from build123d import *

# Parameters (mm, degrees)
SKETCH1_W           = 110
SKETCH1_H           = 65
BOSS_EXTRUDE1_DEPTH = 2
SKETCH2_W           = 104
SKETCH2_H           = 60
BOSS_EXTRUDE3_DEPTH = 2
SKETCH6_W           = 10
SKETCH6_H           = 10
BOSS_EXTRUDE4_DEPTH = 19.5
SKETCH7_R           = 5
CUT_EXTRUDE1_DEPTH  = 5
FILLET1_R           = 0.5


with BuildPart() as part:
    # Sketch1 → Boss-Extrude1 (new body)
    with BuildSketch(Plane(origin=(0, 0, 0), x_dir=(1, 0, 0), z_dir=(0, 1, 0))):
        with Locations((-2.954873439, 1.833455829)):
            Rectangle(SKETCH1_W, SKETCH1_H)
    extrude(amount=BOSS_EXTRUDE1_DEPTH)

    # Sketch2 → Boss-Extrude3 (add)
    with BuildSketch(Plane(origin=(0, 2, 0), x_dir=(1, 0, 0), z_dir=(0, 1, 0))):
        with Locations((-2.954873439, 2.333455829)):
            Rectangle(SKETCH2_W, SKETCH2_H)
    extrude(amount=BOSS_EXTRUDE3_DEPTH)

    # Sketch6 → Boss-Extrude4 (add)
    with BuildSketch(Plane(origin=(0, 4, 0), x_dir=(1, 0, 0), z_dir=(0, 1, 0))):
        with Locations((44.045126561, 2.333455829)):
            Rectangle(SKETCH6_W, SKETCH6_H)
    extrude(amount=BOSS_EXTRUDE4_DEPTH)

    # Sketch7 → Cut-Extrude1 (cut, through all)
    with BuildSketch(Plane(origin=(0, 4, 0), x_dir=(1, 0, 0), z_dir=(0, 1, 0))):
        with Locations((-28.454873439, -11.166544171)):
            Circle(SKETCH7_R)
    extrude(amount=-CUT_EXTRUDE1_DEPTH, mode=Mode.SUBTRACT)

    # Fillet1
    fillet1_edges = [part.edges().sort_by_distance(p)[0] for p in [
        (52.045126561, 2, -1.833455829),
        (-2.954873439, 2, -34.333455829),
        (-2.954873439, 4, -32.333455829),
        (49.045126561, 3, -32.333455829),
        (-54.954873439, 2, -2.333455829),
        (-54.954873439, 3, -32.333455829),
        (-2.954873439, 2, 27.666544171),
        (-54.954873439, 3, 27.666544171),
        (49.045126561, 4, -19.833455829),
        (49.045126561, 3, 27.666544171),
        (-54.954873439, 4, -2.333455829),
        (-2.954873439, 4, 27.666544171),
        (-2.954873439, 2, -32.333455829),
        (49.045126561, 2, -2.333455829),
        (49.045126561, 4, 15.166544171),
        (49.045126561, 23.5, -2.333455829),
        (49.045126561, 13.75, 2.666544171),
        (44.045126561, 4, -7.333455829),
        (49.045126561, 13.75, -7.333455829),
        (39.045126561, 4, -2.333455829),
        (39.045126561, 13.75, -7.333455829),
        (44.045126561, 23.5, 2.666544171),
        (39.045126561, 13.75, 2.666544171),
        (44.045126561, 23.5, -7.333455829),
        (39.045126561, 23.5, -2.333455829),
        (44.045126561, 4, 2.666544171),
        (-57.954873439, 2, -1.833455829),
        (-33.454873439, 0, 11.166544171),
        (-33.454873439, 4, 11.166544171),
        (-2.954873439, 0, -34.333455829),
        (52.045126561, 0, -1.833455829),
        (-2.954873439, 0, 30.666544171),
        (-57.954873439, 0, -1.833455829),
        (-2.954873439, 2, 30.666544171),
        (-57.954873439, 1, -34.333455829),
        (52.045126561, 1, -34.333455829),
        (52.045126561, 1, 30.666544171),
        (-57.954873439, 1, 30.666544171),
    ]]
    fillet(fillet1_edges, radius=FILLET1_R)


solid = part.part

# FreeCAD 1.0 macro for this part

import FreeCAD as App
import Part
import Sketcher

V = App.Vector
Q = App.Units.Quantity


def add_polygon(sketch, points):
    """Adds a closed chain of lines whose ends are joined by coincident constraints."""
    first, n = sketch.GeometryCount, len(points)
    for a, b in zip(points, points[1:] + points[:1]):
        sketch.addGeometry(Part.LineSegment(App.Vector(*a, 0), App.Vector(*b, 0)), False)
    for i in range(n):
        sketch.addConstraint(Sketcher.Constraint("Coincident", first + i, 2, first + (i + 1) % n, 1))

doc = App.newDocument("Part")
params = doc.addObject("Spreadsheet::Sheet", "Params")
for row, (alias, value) in enumerate([
    ("sketch1_width", "110 mm"),
    ("sketch1_height", "65 mm"),
    ("pad1_length", "2 mm"),
    ("sketch2_width", "104 mm"),
    ("sketch2_height", "60 mm"),
    ("pad2_length", "2 mm"),
    ("sketch3_width", "10 mm"),
    ("pad3_length", "19.5 mm"),
    ("sketch4_diameter", "10 mm"),
    ("fillet_radius", "0.5 mm"),
], start=1):
    params.set(f"A{row}", alias)
    params.set(f"B{row}", "=" + value)
    params.setAlias(f"B{row}", alias)

body = doc.addObject("PartDesign::Body", "Body")

sketch1 = body.newObject("Sketcher::SketchObject", "Sketch")
sketch1.AttachmentSupport = (doc.getObject("XZ_Plane"), [""])
sketch1.MapMode = "FlatFace"
add_polygon(sketch1, [(-58, -34), (-58, 31), (52, 31), (52, -34)])
sketch1.addConstraint([
    Sketcher.Constraint("Vertical", 0),
    Sketcher.Constraint("Horizontal", 1),
    Sketcher.Constraint("Vertical", 2),
    Sketcher.Constraint("Horizontal", 3),
    Sketcher.Constraint("DistanceX", 1, 1, 1, 2, Q("110 mm")),
    Sketcher.Constraint("DistanceY", 0, 1, 0, 2, Q("65 mm")),
    Sketcher.Constraint("DistanceX", 0, 2, -1, 1, Q("57.954873 mm")),
    Sketcher.Constraint("DistanceY", -1, 1, 0, 2, Q("30.666544 mm")),
])
sketch1.setExpression("Constraints[8]", "Params.sketch1_width")
sketch1.setExpression("Constraints[9]", "Params.sketch1_height")
pad1 = body.newObject("PartDesign::Pad", "Pad")
pad1.Profile = sketch1
pad1.setExpression("Length", "Params.pad1_length")
pad1.Reversed = True

sketch2 = body.newObject("Sketcher::SketchObject", "Sketch001")
sketch2.AttachmentSupport = (doc.getObject("XZ_Plane"), [""])
sketch2.MapMode = "FlatFace"
sketch2.AttachmentOffset = App.Placement(V(0, 0, -2), App.Rotation())
add_polygon(sketch2, [(-55, -32), (-55, 28), (49, 28), (49, -32)])
sketch2.addConstraint([
    Sketcher.Constraint("Vertical", 0),
    Sketcher.Constraint("Horizontal", 1),
    Sketcher.Constraint("Vertical", 2),
    Sketcher.Constraint("Horizontal", 3),
    Sketcher.Constraint("DistanceX", 1, 1, 1, 2, Q("104 mm")),
    Sketcher.Constraint("DistanceY", 0, 1, 0, 2, Q("60 mm")),
    Sketcher.Constraint("DistanceX", 0, 2, -1, 1, Q("54.954873 mm")),
    Sketcher.Constraint("DistanceY", -1, 1, 0, 2, Q("27.666544 mm")),
])
sketch2.setExpression("Constraints[8]", "Params.sketch2_width")
sketch2.setExpression("Constraints[9]", "Params.sketch2_height")
pad2 = body.newObject("PartDesign::Pad", "Pad001")
pad2.Profile = sketch2
pad2.setExpression("Length", "Params.pad2_length")
pad2.Reversed = True

sketch3 = body.newObject("Sketcher::SketchObject", "Sketch002")
sketch3.AttachmentSupport = (doc.getObject("XZ_Plane"), [""])
sketch3.MapMode = "FlatFace"
sketch3.AttachmentOffset = App.Placement(V(0, 0, -4), App.Rotation())
add_polygon(sketch3, [(39, -7), (39, 3), (49, 3), (49, -7)])
sketch3.addConstraint([
    Sketcher.Constraint("Vertical", 0),
    Sketcher.Constraint("Horizontal", 1),
    Sketcher.Constraint("Vertical", 2),
    Sketcher.Constraint("Horizontal", 3),
    Sketcher.Constraint("Equal", 3, 0),
    Sketcher.Constraint("DistanceX", 1, 1, 1, 2, Q("10 mm")),
    Sketcher.Constraint("DistanceX", -1, 1, 0, 2, Q("39.045127 mm")),
    Sketcher.Constraint("DistanceY", -1, 1, 0, 2, Q("2.666544 mm")),
])
sketch3.setExpression("Constraints[9]", "Params.sketch3_width")
pad3 = body.newObject("PartDesign::Pad", "Pad002")
pad3.Profile = sketch3
pad3.setExpression("Length", "Params.pad3_length")
pad3.Reversed = True

sketch4 = body.newObject("Sketcher::SketchObject", "Sketch003")
sketch4.AttachmentSupport = (doc.getObject("XZ_Plane"), [""])
sketch4.MapMode = "FlatFace"
sketch4.AttachmentOffset = App.Placement(V(0, 0, -4), App.Rotation())
sketch4.addGeometry(Part.Circle(V(-28, 11, 0), V(0, 0, 1), 5), False)
sketch4.addConstraint([
    Sketcher.Constraint("Diameter", 0, Q("10 mm")),
    Sketcher.Constraint("DistanceX", 0, 3, -1, 1, Q("28.454873 mm")),
    Sketcher.Constraint("DistanceY", -1, 1, 0, 3, Q("11.166544 mm")),
])
sketch4.setExpression("Constraints[0]", "Params.sketch4_diameter")
pocket1 = body.newObject("PartDesign::Pocket", "Pocket")
pocket1.Profile = sketch4
pocket1.Type = "ThroughAll"
pocket1.Reversed = True
doc.recompute()

fillet = body.newObject("PartDesign::Fillet", "Fillet")
fillet.Base = (pocket1, ["Edge1"])
fillet.UseAllEdges = True
fillet.setExpression("Radius", "Params.fillet_radius")

doc.recompute()
